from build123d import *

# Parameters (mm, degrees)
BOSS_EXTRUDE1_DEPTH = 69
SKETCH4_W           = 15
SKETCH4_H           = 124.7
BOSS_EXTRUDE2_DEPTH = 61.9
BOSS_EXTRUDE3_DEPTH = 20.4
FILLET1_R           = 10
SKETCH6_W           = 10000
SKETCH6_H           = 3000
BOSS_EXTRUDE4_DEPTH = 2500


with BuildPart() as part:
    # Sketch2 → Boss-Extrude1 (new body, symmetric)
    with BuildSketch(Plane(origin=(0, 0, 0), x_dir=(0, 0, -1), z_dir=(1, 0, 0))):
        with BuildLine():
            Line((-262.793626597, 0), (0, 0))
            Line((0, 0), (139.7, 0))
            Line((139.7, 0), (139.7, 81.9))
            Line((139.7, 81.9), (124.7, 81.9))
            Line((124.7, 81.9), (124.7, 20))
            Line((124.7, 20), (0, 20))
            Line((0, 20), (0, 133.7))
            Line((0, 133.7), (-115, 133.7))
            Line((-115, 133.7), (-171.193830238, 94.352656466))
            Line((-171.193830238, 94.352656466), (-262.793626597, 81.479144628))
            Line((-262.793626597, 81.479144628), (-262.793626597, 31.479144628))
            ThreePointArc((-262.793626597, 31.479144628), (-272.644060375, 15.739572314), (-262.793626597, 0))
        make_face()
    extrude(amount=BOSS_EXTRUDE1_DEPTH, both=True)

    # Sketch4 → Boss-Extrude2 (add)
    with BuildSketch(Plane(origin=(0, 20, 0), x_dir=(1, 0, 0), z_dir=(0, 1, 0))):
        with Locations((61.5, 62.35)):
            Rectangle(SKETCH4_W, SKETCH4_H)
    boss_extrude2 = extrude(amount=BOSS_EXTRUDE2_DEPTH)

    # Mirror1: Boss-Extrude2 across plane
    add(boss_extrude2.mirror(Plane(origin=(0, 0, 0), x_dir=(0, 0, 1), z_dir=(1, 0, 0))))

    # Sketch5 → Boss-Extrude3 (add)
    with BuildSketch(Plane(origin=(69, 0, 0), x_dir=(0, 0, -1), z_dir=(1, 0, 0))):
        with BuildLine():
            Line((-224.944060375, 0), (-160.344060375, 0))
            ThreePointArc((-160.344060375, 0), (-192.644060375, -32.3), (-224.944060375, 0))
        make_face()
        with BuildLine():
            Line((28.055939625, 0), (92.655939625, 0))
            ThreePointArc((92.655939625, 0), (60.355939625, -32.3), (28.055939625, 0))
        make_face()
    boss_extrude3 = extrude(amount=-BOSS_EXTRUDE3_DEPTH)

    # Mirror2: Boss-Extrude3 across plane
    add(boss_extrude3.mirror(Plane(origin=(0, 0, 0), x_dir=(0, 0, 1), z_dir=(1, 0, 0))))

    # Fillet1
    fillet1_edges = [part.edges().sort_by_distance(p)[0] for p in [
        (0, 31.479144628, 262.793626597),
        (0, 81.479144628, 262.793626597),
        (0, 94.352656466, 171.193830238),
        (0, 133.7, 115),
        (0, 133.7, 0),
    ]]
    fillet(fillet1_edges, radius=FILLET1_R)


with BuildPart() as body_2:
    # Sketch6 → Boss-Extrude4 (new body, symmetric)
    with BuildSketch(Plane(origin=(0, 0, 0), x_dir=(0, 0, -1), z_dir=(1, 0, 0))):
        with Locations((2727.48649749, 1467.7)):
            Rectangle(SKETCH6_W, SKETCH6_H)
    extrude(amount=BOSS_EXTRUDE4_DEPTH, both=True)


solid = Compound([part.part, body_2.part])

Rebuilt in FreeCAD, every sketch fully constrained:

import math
import FreeCAD as App
import Part
import Sketcher
Q = App.Units.Quantity


def edges_at(feature, points):
    """Names of the edges that pass closest to the given points."""
    edges = feature.Shape.Edges
    near = lambda p: min(range(len(edges)), key=lambda i: edges[i].distToShape(Part.Vertex(*p))[0])
    return sorted({f"Edge{near(p) + 1}" for p in points})

doc = App.newDocument("Part")
params = doc.addObject("Spreadsheet::Sheet", "Params")
for row, (alias, value) in enumerate([
    ("sketch1_radius", "17.5 mm"),
    ("sketch1_width", "50 mm"),
    ("sketch1_height", "15 mm"),
    ("sketch1_height2", "115 mm"),
    ("sketch1_width2", "81.9 mm"),
    ("pad1_length", "138 mm"),
    ("sketch2_width", "15 mm"),
    ("sketch2_height", "124.7 mm"),
    ("pad2_length", "61.9 mm"),
    ("sketch3_radius", "32.3 mm"),
    ("pad3_length", "20.4 mm"),
    ("fillet_radius", "10 mm"),
    ("sketch4_width", "3000 mm"),
    ("sketch4_height", "10000 mm"),
    ("pad4_length", "5000 mm"),
], start=1):
    params.set(f"A{row}", alias)
    params.set(f"B{row}", "=" + value)
    params.setAlias(f"B{row}", alias)

body = doc.addObject("PartDesign::Body", "Body")

# Sketch on YZ plane
sketch1 = body.newObject("Sketcher::SketchObject", "Sketch")
sketch1.AttachmentSupport = (doc.getObject("YZ_Plane"), [""])
sketch1.MapMode = "FlatFace"
sketch1.addGeometry(Part.LineSegment(App.Vector(0, 262.793627, 0), App.Vector(0, -139.7, 0)), False)
sketch1.addGeometry(Part.LineSegment(App.Vector(0, -139.7, 0), App.Vector(81.9, -139.7, 0)), False)
sketch1.addGeometry(Part.LineSegment(App.Vector(81.9, -139.7, 0), App.Vector(81.9, -124.7, 0)), False)
sketch1.addGeometry(Part.LineSegment(App.Vector(81.9, -124.7, 0), App.Vector(20, -124.7, 0)), False)
sketch1.addGeometry(Part.LineSegment(App.Vector(20, -124.7, 0), App.Vector(20, 0, 0)), False)
sketch1.addGeometry(Part.LineSegment(App.Vector(20, 0, 0), App.Vector(133.7, 0, 0)), False)
sketch1.addGeometry(Part.LineSegment(App.Vector(133.7, 0, 0), App.Vector(133.7, 115, 0)), False)
sketch1.addGeometry(Part.LineSegment(App.Vector(133.7, 115, 0), App.Vector(94.352656, 171.19383, 0)), False)
sketch1.addGeometry(Part.LineSegment(App.Vector(94.352656, 171.19383, 0), App.Vector(81.479145, 262.793627, 0)), False)
sketch1.addGeometry(Part.LineSegment(App.Vector(81.479145, 262.793627, 0), App.Vector(31.479145, 262.793627, 0)), False)
sketch1.addGeometry(Part.ArcOfCircle(Part.Circle(App.Vector(15.739572, 255.14406, 0), App.Vector(0, 0, 1), 17.5), math.radians(25.920147), math.radians(154.079853)), False)
sketch1.addConstraint(Sketcher.Constraint("Coincident", 0, 2, 1, 1))
sketch1.addConstraint(Sketcher.Constraint("Coincident", 1, 2, 2, 1))
sketch1.addConstraint(Sketcher.Constraint("Coincident", 2, 2, 3, 1))
sketch1.addConstraint(Sketcher.Constraint("Coincident", 3, 2, 4, 1))
sketch1.addConstraint(Sketcher.Constraint("Coincident", 4, 2, 5, 1))
sketch1.addConstraint(Sketcher.Constraint("Coincident", 5, 2, 6, 1))
sketch1.addConstraint(Sketcher.Constraint("Coincident", 6, 2, 7, 1))
sketch1.addConstraint(Sketcher.Constraint("Coincident", 7, 2, 8, 1))
sketch1.addConstraint(Sketcher.Constraint("Coincident", 8, 2, 9, 1))
sketch1.addConstraint(Sketcher.Constraint("Coincident", 9, 2, 10, 1))
sketch1.addConstraint(Sketcher.Constraint("Coincident", 10, 2, 0, 1))
sketch1.addConstraint(Sketcher.Constraint("Vertical", 0))
sketch1.addConstraint(Sketcher.Constraint("Horizontal", 1))
sketch1.addConstraint(Sketcher.Constraint("Vertical", 2))
sketch1.addConstraint(Sketcher.Constraint("Horizontal", 3))
sketch1.addConstraint(Sketcher.Constraint("Vertical", 4))
sketch1.addConstraint(Sketcher.Constraint("Horizontal", 5))
sketch1.addConstraint(Sketcher.Constraint("Vertical", 6))
sketch1.addConstraint(Sketcher.Constraint("Horizontal", 9))
sketch1.addConstraint(Sketcher.Constraint("PointOnObject", 0, 2, -2))
sketch1.addConstraint(Sketcher.Constraint("PointOnObject", 4, 2, -1))
sketch1.addConstraint(Sketcher.Constraint("Horizontal", 9, 2, 10, 2))
sketch1.addConstraint(Sketcher.Constraint("Radius", 10, 17.5))
sketch1.addConstraint(Sketcher.Constraint("DistanceX", 9, 2, 9, 1, 50.0))
sketch1.addConstraint(Sketcher.Constraint("DistanceY", 2, 1, 2, 2, 15.0))
sketch1.addConstraint(Sketcher.Constraint("DistanceY", 6, 1, 6, 2, 115.0))
sketch1.addConstraint(Sketcher.Constraint("Angle", 7, Q("125 deg")))
sketch1.addConstraint(Sketcher.Constraint("Angle", 8, Q("98 deg")))
sketch1.addConstraint(Sketcher.Constraint("DistanceX", 1, 1, 1, 2, 81.9))
sketch1.addConstraint(Sketcher.Constraint("DistanceX", 3, 2, 3, 1, 61.9))
sketch1.addConstraint(Sketcher.Constraint("DistanceX", 5, 1, 5, 2, 113.7))
sketch1.addConstraint(Sketcher.Constraint("DistanceY", 4, 1, 4, 2, 124.7))
sketch1.addConstraint(Sketcher.Constraint("Distance", 7, 68.6))
sketch1.addConstraint(Sketcher.Constraint("Distance", 8, 92.5))
sketch1.setExpression("Constraints[22]", "Params.sketch1_radius")
sketch1.setExpression("Constraints[23]", "Params.sketch1_width")
sketch1.setExpression("Constraints[24]", "Params.sketch1_height")
sketch1.setExpression("Constraints[25]", "Params.sketch1_height2")
sketch1.setExpression("Constraints[28]", "Params.sketch1_width2")
pad1 = body.newObject("PartDesign::Pad", "Pad")
pad1.Profile = sketch1
pad1.setExpression("Length", "Params.pad1_length")
pad1.Midplane = True

# Sketch on XZ plane
sketch2 = body.newObject("Sketcher::SketchObject", "Sketch001")
sketch2.AttachmentSupport = (doc.getObject("XZ_Plane"), [""])
sketch2.MapMode = "FlatFace"
sketch2.AttachmentOffset = App.Placement(App.Vector(0, 0, -20), App.Rotation())
sketch2.addGeometry(Part.LineSegment(App.Vector(54, -124.7, 0), App.Vector(54, 0, 0)), False)
sketch2.addGeometry(Part.LineSegment(App.Vector(54, 0, 0), App.Vector(69, 0, 0)), False)
sketch2.addGeometry(Part.LineSegment(App.Vector(69, 0, 0), App.Vector(69, -124.7, 0)), False)
sketch2.addGeometry(Part.LineSegment(App.Vector(69, -124.7, 0), App.Vector(54, -124.7, 0)), False)
sketch2.addConstraint(Sketcher.Constraint("Coincident", 0, 2, 1, 1))
sketch2.addConstraint(Sketcher.Constraint("Coincident", 1, 2, 2, 1))
sketch2.addConstraint(Sketcher.Constraint("Coincident", 2, 2, 3, 1))
sketch2.addConstraint(Sketcher.Constraint("Coincident", 3, 2, 0, 1))
sketch2.addConstraint(Sketcher.Constraint("Vertical", 0))
sketch2.addConstraint(Sketcher.Constraint("Horizontal", 1))
sketch2.addConstraint(Sketcher.Constraint("Vertical", 2))
sketch2.addConstraint(Sketcher.Constraint("Horizontal", 3))
sketch2.addConstraint(Sketcher.Constraint("PointOnObject", 0, 2, -1))
sketch2.addConstraint(Sketcher.Constraint("DistanceX", 1, 1, 1, 2, 15.0))
sketch2.addConstraint(Sketcher.Constraint("DistanceY", 0, 1, 0, 2, 124.7))
sketch2.addConstraint(Sketcher.Constraint("DistanceX", -1, 1, 0, 2, 54.0))
sketch2.setExpression("Constraints[9]", "Params.sketch2_width")
sketch2.setExpression("Constraints[10]", "Params.sketch2_height")
pad2 = body.newObject("PartDesign::Pad", "Pad001")
pad2.Profile = sketch2
pad2.setExpression("Length", "Params.pad2_length")
pad2.Reversed = True
doc.recompute()

mirrored = body.newObject("PartDesign::Mirrored", "Mirrored")
mirrored.Originals = [pad2]
mirrored.MirrorPlane = (doc.getObject("YZ_Plane"), [""])
body.Tip = mirrored

# Sketch on YZ plane
sketch3 = body.newObject("Sketcher::SketchObject", "Sketch002")
sketch3.AttachmentSupport = (doc.getObject("YZ_Plane"), [""])
sketch3.MapMode = "FlatFace"
sketch3.AttachmentOffset = App.Placement(App.Vector(0, 0, 69), App.Rotation())
sketch3.addGeometry(Part.LineSegment(App.Vector(0, 160.34406, 0), App.Vector(0, 224.94406, 0)), False)
sketch3.addGeometry(Part.ArcOfCircle(Part.Circle(App.Vector(0, 192.64406, 0), App.Vector(0, 0, 1), 32.3), math.radians(90), math.radians(270)), False)
sketch3.addGeometry(Part.LineSegment(App.Vector(0, -92.65594, 0), App.Vector(0, -28.05594, 0)), False)
sketch3.addGeometry(Part.ArcOfCircle(Part.Circle(App.Vector(0, -60.35594, 0), App.Vector(0, 0, 1), 32.3), math.radians(90), math.radians(270)), False)
sketch3.addConstraint(Sketcher.Constraint("Coincident", 0, 1, 1, 2))
sketch3.addConstraint(Sketcher.Constraint("Coincident", 1, 1, 0, 2))
sketch3.addConstraint(Sketcher.Constraint("Coincident", 2, 1, 3, 2))
sketch3.addConstraint(Sketcher.Constraint("Coincident", 3, 1, 2, 2))
sketch3.addConstraint(Sketcher.Constraint("Vertical", 0))
sketch3.addConstraint(Sketcher.Constraint("Vertical", 2))
sketch3.addConstraint(Sketcher.Constraint("Equal", 1, 3))
sketch3.addConstraint(Sketcher.Constraint("PointOnObject", 1, 3, -2))
sketch3.addConstraint(Sketcher.Constraint("PointOnObject", 3, 3, -2))
sketch3.addConstraint(Sketcher.Constraint("PointOnObject", 0, 1, -2))
sketch3.addConstraint(Sketcher.Constraint("PointOnObject", 2, 1, -2))
sketch3.addConstraint(Sketcher.Constraint("Radius", 1, 32.3))
sketch3.addConstraint(Sketcher.Constraint("DistanceY", 3, 3, 1, 3, 253.0))
sketch3.addConstraint(Sketcher.Constraint("DistanceY", -1, 1, 1, 3, 192.64406))
sketch3.setExpression("Constraints[11]", "Params.sketch3_radius")
pad3 = body.newObject("PartDesign::Pad", "Pad002")
pad3.Profile = sketch3
pad3.setExpression("Length", "Params.pad3_length")
pad3.Reversed = True
doc.recompute()

mirrored2 = body.newObject("PartDesign::Mirrored", "Mirrored001")
mirrored2.Originals = [pad3]
mirrored2.MirrorPlane = (doc.getObject("YZ_Plane"), [""])
body.Tip = mirrored2
doc.recompute()

fillet = body.newObject("PartDesign::Fillet", "Fillet")
fillet.Base = (mirrored2, edges_at(mirrored2, [
    (0, 31.479, 262.794),
    (0, 81.479, 262.794),
    (0, 94.353, 171.194),
    (0, 133.7, 115),
    (0, 133.7, 0),
]))
fillet.setExpression("Radius", "Params.fillet_radius")
body2 = doc.addObject("PartDesign::Body", "Body001")

# Sketch on YZ plane
sketch4 = body2.newObject("Sketcher::SketchObject", "Sketch003")
sketch4.AttachmentSupport = (doc.getObject("YZ_Plane001"), [""])
sketch4.MapMode = "FlatFace"
sketch4.addGeometry(Part.LineSegment(App.Vector(2967.7, 2272.513503, 0), App.Vector(-32.3, 2272.513503, 0)), False)
sketch4.addGeometry(Part.LineSegment(App.Vector(-32.3, 2272.513503, 0), App.Vector(-32.3, -7727.486497, 0)), False)
sketch4.addGeometry(Part.LineSegment(App.Vector(-32.3, -7727.486497, 0), App.Vector(2967.7, -7727.486497, 0)), False)
sketch4.addGeometry(Part.LineSegment(App.Vector(2967.7, -7727.486497, 0), App.Vector(2967.7, 2272.513503, 0)), False)
sketch4.addConstraint(Sketcher.Constraint("Coincident", 0, 2, 1, 1))
sketch4.addConstraint(Sketcher.Constraint("Coincident", 1, 2, 2, 1))
sketch4.addConstraint(Sketcher.Constraint("Coincident", 2, 2, 3, 1))
sketch4.addConstraint(Sketcher.Constraint("Coincident", 3, 2, 0, 1))
sketch4.addConstraint(Sketcher.Constraint("Horizontal", 0))
sketch4.addConstraint(Sketcher.Constraint("Vertical", 1))
sketch4.addConstraint(Sketcher.Constraint("Horizontal", 2))
sketch4.addConstraint(Sketcher.Constraint("Vertical", 3))
sketch4.addConstraint(Sketcher.Constraint("DistanceX", 0, 2, 0, 1, 3000.0))
sketch4.addConstraint(Sketcher.Constraint("DistanceY", 1, 2, 1, 1, 10000.0))
sketch4.addConstraint(Sketcher.Constraint("DistanceX", 0, 2, -1, 1, 32.3))
sketch4.addConstraint(Sketcher.Constraint("DistanceY", -1, 1, 0, 2, 2272.513503))
sketch4.setExpression("Constraints[8]", "Params.sketch4_width")
sketch4.setExpression("Constraints[9]", "Params.sketch4_height")
pad4 = body2.newObject("PartDesign::Pad", "Pad003")
pad4.Profile = sketch4
pad4.setExpression("Length", "Params.pad4_length")
pad4.Midplane = True

doc.recompute()
